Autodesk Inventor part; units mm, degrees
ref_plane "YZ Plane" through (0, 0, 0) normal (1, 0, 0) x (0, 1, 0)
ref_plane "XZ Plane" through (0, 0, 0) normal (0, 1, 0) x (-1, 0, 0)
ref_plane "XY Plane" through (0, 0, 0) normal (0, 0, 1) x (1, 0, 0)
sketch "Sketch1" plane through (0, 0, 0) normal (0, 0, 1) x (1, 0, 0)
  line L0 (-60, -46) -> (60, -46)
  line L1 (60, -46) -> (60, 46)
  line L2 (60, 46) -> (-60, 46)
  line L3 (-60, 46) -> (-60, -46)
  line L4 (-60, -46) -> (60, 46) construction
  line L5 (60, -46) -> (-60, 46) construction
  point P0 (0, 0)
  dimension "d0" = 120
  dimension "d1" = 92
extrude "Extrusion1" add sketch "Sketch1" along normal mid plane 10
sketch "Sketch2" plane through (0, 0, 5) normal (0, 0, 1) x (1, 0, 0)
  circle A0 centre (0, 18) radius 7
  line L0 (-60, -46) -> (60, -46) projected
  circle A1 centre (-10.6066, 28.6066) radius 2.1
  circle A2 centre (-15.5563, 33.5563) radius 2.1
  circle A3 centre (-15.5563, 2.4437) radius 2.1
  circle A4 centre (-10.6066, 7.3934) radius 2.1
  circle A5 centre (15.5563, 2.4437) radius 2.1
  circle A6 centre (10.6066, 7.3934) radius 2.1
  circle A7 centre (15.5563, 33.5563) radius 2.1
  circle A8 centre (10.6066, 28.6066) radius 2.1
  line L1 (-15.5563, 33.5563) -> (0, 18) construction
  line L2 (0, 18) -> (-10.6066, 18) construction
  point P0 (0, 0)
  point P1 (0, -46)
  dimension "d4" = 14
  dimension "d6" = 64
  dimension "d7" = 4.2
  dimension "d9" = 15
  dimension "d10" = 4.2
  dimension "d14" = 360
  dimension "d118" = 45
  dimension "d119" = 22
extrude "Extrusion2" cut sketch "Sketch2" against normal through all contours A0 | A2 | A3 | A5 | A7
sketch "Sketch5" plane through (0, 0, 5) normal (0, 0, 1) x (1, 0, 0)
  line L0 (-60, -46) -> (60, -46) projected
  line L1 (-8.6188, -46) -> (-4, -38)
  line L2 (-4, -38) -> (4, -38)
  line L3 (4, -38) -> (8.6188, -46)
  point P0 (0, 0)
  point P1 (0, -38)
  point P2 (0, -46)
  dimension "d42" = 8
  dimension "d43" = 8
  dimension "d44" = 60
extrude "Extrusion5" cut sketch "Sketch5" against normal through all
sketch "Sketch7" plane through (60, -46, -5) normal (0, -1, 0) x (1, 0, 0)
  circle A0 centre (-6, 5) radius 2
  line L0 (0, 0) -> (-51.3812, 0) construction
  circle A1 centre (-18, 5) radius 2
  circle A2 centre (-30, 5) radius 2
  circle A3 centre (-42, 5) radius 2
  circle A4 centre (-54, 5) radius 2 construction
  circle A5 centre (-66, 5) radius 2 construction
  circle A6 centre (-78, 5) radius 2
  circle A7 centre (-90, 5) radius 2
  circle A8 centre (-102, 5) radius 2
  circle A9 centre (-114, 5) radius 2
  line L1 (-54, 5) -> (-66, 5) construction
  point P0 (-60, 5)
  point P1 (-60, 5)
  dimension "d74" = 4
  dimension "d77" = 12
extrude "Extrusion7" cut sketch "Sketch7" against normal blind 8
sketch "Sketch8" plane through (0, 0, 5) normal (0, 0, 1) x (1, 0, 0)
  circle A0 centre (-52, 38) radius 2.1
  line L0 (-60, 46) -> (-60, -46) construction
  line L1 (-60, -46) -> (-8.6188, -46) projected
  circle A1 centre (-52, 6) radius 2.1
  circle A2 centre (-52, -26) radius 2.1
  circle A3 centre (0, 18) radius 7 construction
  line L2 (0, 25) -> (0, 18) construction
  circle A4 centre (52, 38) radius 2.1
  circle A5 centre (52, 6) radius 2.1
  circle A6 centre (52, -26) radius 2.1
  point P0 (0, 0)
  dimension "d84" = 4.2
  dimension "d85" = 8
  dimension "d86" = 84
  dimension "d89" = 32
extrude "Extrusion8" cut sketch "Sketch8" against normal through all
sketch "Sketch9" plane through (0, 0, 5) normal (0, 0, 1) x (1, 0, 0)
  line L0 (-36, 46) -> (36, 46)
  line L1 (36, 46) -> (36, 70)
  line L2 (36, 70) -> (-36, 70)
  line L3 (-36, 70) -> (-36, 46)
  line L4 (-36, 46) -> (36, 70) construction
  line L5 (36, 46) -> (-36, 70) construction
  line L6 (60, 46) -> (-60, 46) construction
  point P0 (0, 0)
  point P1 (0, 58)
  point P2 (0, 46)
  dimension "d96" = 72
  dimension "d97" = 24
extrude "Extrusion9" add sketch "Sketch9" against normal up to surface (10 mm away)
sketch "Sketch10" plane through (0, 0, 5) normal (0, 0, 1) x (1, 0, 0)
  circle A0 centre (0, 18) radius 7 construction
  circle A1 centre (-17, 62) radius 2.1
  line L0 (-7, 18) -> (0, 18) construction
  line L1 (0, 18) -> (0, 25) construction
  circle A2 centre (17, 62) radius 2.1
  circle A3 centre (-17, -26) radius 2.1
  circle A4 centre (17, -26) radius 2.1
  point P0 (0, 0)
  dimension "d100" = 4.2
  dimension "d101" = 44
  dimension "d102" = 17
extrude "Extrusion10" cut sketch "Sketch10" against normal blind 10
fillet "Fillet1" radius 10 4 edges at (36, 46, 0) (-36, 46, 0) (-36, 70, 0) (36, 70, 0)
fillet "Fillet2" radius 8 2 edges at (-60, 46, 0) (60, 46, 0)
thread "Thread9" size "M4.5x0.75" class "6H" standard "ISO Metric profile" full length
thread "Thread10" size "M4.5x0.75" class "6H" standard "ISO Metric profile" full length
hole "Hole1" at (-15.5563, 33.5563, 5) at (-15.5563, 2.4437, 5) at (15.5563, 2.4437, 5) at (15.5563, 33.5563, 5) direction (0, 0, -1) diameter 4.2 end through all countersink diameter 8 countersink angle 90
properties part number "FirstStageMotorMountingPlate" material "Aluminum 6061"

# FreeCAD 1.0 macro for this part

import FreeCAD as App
import Part
import Sketcher

V = App.Vector
Q = App.Units.Quantity


def edges_at(feature, points):
    """Names of the edges that pass closest to the given points."""
    edges = feature.Shape.Edges
    near = lambda p: min(range(len(edges)), key=lambda i: edges[i].distToShape(Part.Vertex(*p))[0])
    return sorted({f"Edge{near(p) + 1}" for p in points})


def add_polygon(sketch, points):
    """Adds a closed chain of lines whose ends are joined by coincident constraints."""
    first, n = sketch.GeometryCount, len(points)
    for a, b in zip(points, points[1:] + points[:1]):
        sketch.addGeometry(Part.LineSegment(App.Vector(*a, 0), App.Vector(*b, 0)), False)
    for i in range(n):
        sketch.addConstraint(Sketcher.Constraint("Coincident", first + i, 2, first + (i + 1) % n, 1))

doc = App.newDocument("Part")
body = doc.addObject("PartDesign::Body", "Body")

# Sketch on XY plane
sketch1 = body.newObject("Sketcher::SketchObject", "Sketch")
sketch1.AttachmentSupport = (doc.getObject("XY_Plane"), [""])
sketch1.MapMode = "FlatFace"
add_polygon(sketch1, [(-60, 46), (-60, -46), (60, -46), (60, 46)])  # lines 0-3
sketch1.addConstraint([
    Sketcher.Constraint("Vertical", 0),
    Sketcher.Constraint("Horizontal", 1),
    Sketcher.Constraint("Vertical", 2),
    Sketcher.Constraint("Horizontal", 3),
    Sketcher.Constraint("Symmetric", 0, 2, 2, 2, -1, 1),
    Sketcher.Constraint("DistanceX", 1, 1, 1, 2, Q("120 mm")),
    Sketcher.Constraint("DistanceY", 0, 2, 0, 1, Q("92 mm")),
])
pad1 = body.newObject("PartDesign::Pad", "Pad")
pad1.Profile = sketch1
pad1.Length = 10
pad1.Midplane = True

# Sketch on XY plane
sketch2 = body.newObject("Sketcher::SketchObject", "Sketch001")
sketch2.AttachmentSupport = (doc.getObject("XY_Plane"), [""])
sketch2.MapMode = "FlatFace"
sketch2.AttachmentOffset = App.Placement(V(0, 0, 5), App.Rotation())
sketch2.addGeometry([
    Part.Circle(V(0, 18, 0), V(0, 0, 1), 7),  # 0
    Part.Circle(V(-15.5563, 33.5563, 0), V(0, 0, 1), 2.1),  # 1
    Part.Circle(V(-15.5563, 2.4437, 0), V(0, 0, 1), 2.1),  # 2
    Part.Circle(V(15.5563, 2.4437, 0), V(0, 0, 1), 2.1),  # 3
    Part.Circle(V(15.5563, 33.5563, 0), V(0, 0, 1), 2.1),  # 4
], False)
sketch2.addConstraint([
    Sketcher.Constraint("Equal", 1, 2),
    Sketcher.Constraint("Equal", 2, 3),
    Sketcher.Constraint("Equal", 3, 4),
    Sketcher.Constraint("Symmetric", 2, 3, 3, 3, -2),
    Sketcher.Constraint("Symmetric", 1, 3, 4, 3, -2),
    Sketcher.Constraint("PointOnObject", 0, 3, -2),
    Sketcher.Constraint("Vertical", 1, 3, 2, 3),
    Sketcher.Constraint("Diameter", 0, Q("14 mm")),
    Sketcher.Constraint("Diameter", 1, Q("4.2 mm")),
    Sketcher.Constraint("DistanceY", -1, 1, 0, 3, Q("18 mm")),
    Sketcher.Constraint("DistanceX", 1, 3, -1, 1, Q("15.5563 mm")),
    Sketcher.Constraint("DistanceY", -1, 1, 1, 3, Q("33.5563 mm")),
    Sketcher.Constraint("DistanceY", -1, 1, 2, 3, Q("2.4437 mm")),
])
pocket1 = body.newObject("PartDesign::Pocket", "Pocket")
pocket1.Profile = sketch2
pocket1.Type = "ThroughAll"

# Sketch on XY plane
sketch3 = body.newObject("Sketcher::SketchObject", "Sketch002")
sketch3.AttachmentSupport = (doc.getObject("XY_Plane"), [""])
sketch3.MapMode = "FlatFace"
sketch3.AttachmentOffset = App.Placement(V(0, 0, 5), App.Rotation())
add_polygon(sketch3, [(-4, -38), (-8.6188, -46), (8.6188, -46), (4, -38)])  # lines 0-3
sketch3.addConstraint([
    Sketcher.Constraint("Horizontal", 1),
    Sketcher.Constraint("Horizontal", 3),
    Sketcher.Constraint("Equal", 0, 2),
    Sketcher.Constraint("DistanceX", 3, 2, 3, 1, Q("8 mm")),
    Sketcher.Constraint("DistanceY", 1, 2, 2, 2, Q("8 mm")),
    Sketcher.Constraint("Angle", 0, Q("-120 deg")),
    Sketcher.Constraint("DistanceY", 0, 2, -1, 1, Q("46 mm")),
    Sketcher.Constraint("DistanceX", -1, 1, 2, 2, Q("4 mm")),
])
pocket2 = body.newObject("PartDesign::Pocket", "Pocket001")
pocket2.Profile = sketch3
pocket2.Type = "ThroughAll"

# Sketch on XZ plane
sketch4 = body.newObject("Sketcher::SketchObject", "Sketch003")
sketch4.AttachmentSupport = (doc.getObject("XZ_Plane"), [""])
sketch4.MapMode = "FlatFace"
sketch4.AttachmentOffset = App.Placement(V(0, 0, 46), App.Rotation())
sketch4.addGeometry([
    Part.Circle(V(54, 0, 0), V(0, 0, 1), 2),  # 0
    Part.Circle(V(42, 0, 0), V(0, 0, 1), 2),  # 1
    Part.Circle(V(30, 0, 0), V(0, 0, 1), 2),  # 2
    Part.Circle(V(18, 0, 0), V(0, 0, 1), 2),  # 3
    Part.Circle(V(-18, 0, 0), V(0, 0, 1), 2),  # 4
    Part.Circle(V(-30, 0, 0), V(0, 0, 1), 2),  # 5
    Part.Circle(V(-42, 0, 0), V(0, 0, 1), 2),  # 6
    Part.Circle(V(-54, 0, 0), V(0, 0, 1), 2),  # 7
], False)
sketch4.addConstraint([
    Sketcher.Constraint("Equal", 0, 1),
    Sketcher.Constraint("Equal", 1, 2),
    Sketcher.Constraint("Equal", 2, 3),
    Sketcher.Constraint("Equal", 3, 4),
    Sketcher.Constraint("Equal", 4, 5),
    Sketcher.Constraint("Equal", 5, 6),
    Sketcher.Constraint("Equal", 6, 7),
    Sketcher.Constraint("Symmetric", 3, 3, 4, 3, -1, 1),
    Sketcher.Constraint("Symmetric", 2, 3, 5, 3, -1, 1),
    Sketcher.Constraint("Symmetric", 1, 3, 6, 3, -1, 1),
    Sketcher.Constraint("Symmetric", 0, 3, 7, 3, -1, 1),
    Sketcher.Constraint("PointOnObject", 0, 3, -1),
    Sketcher.Constraint("PointOnObject", 1, 3, -1),
    Sketcher.Constraint("PointOnObject", 2, 3, -1),
    Sketcher.Constraint("PointOnObject", 3, 3, -1),
    Sketcher.Constraint("Diameter", 0, Q("4 mm")),
    Sketcher.Constraint("DistanceX", 1, 3, 0, 3, Q("12 mm")),
    Sketcher.Constraint("DistanceX", 2, 3, 1, 3, Q("12 mm")),
    Sketcher.Constraint("DistanceX", 3, 3, 2, 3, Q("12 mm")),
    Sketcher.Constraint("DistanceX", -1, 1, 0, 3, Q("54 mm")),
])
pocket3 = body.newObject("PartDesign::Pocket", "Pocket002")
pocket3.Profile = sketch4
pocket3.Length = 8

# Sketch on XY plane
sketch5 = body.newObject("Sketcher::SketchObject", "Sketch004")
sketch5.AttachmentSupport = (doc.getObject("XY_Plane"), [""])
sketch5.MapMode = "FlatFace"
sketch5.AttachmentOffset = App.Placement(V(0, 0, 5), App.Rotation())
sketch5.addGeometry([
    Part.Circle(V(-52, 38, 0), V(0, 0, 1), 2.1),  # 0
    Part.Circle(V(-52, 6, 0), V(0, 0, 1), 2.1),  # 1
    Part.Circle(V(-52, -26, 0), V(0, 0, 1), 2.1),  # 2
    Part.Circle(V(52, 38, 0), V(0, 0, 1), 2.1),  # 3
    Part.Circle(V(52, 6, 0), V(0, 0, 1), 2.1),  # 4
    Part.Circle(V(52, -26, 0), V(0, 0, 1), 2.1),  # 5
], False)
sketch5.addConstraint([
    Sketcher.Constraint("Equal", 0, 1),
    Sketcher.Constraint("Equal", 1, 2),
    Sketcher.Constraint("Equal", 2, 3),
    Sketcher.Constraint("Equal", 3, 4),
    Sketcher.Constraint("Equal", 4, 5),
    Sketcher.Constraint("Symmetric", 0, 3, 3, 3, -2),
    Sketcher.Constraint("Symmetric", 1, 3, 4, 3, -2),
    Sketcher.Constraint("Symmetric", 2, 3, 5, 3, -2),
    Sketcher.Constraint("Vertical", 0, 3, 1, 3),
    Sketcher.Constraint("Vertical", 1, 3, 2, 3),
    Sketcher.Constraint("Diameter", 0, Q("4.2 mm")),
    Sketcher.Constraint("DistanceY", 1, 3, 0, 3, Q("32 mm")),
    Sketcher.Constraint("DistanceY", 2, 3, 1, 3, Q("32 mm")),
    Sketcher.Constraint("DistanceX", 0, 3, -1, 1, Q("52 mm")),
    Sketcher.Constraint("DistanceY", -1, 1, 0, 3, Q("38 mm")),
])
pocket4 = body.newObject("PartDesign::Pocket", "Pocket003")
pocket4.Profile = sketch5
pocket4.Type = "ThroughAll"

# Sketch on XY plane
sketch6 = body.newObject("Sketcher::SketchObject", "Sketch005")
sketch6.AttachmentSupport = (doc.getObject("XY_Plane"), [""])
sketch6.MapMode = "FlatFace"
sketch6.AttachmentOffset = App.Placement(V(0, 0, 5), App.Rotation())
add_polygon(sketch6, [(-36, 70), (-36, 46), (36, 46), (36, 70)])  # lines 0-3
sketch6.addConstraint([
    Sketcher.Constraint("Vertical", 0),
    Sketcher.Constraint("Horizontal", 1),
    Sketcher.Constraint("Vertical", 2),
    Sketcher.Constraint("Horizontal", 3),
    Sketcher.Constraint("DistanceX", 1, 1, 1, 2, Q("72 mm")),
    Sketcher.Constraint("DistanceY", 0, 2, 0, 1, Q("24 mm")),
    Sketcher.Constraint("DistanceX", 0, 2, -1, 1, Q("36 mm")),
    Sketcher.Constraint("DistanceY", -1, 1, 0, 2, Q("46 mm")),
])
pad2 = body.newObject("PartDesign::Pad", "Pad001")
pad2.Profile = sketch6
pad2.Length = 10
pad2.Reversed = True

# Sketch on XY plane
sketch7 = body.newObject("Sketcher::SketchObject", "Sketch006")
sketch7.AttachmentSupport = (doc.getObject("XY_Plane"), [""])
sketch7.MapMode = "FlatFace"
sketch7.AttachmentOffset = App.Placement(V(0, 0, 5), App.Rotation())
sketch7.addGeometry([
    Part.Circle(V(-17, 62, 0), V(0, 0, 1), 2.1),
    Part.Circle(V(17, 62, 0), V(0, 0, 1), 2.1),
    Part.Circle(V(-17, -26, 0), V(0, 0, 1), 2.1),
    Part.Circle(V(17, -26, 0), V(0, 0, 1), 2.1),
], False)
sketch7.addConstraint([
    Sketcher.Constraint("Equal", 0, 1),
    Sketcher.Constraint("Equal", 1, 2),
    Sketcher.Constraint("Equal", 2, 3),
    Sketcher.Constraint("Symmetric", 0, 3, 1, 3, -2),
    Sketcher.Constraint("Symmetric", 2, 3, 3, 3, -2),
    Sketcher.Constraint("Vertical", 0, 3, 2, 3),
    Sketcher.Constraint("Diameter", 0, Q("4.2 mm")),
    Sketcher.Constraint("DistanceX", 0, 3, -1, 1, Q("17 mm")),
    Sketcher.Constraint("DistanceY", -1, 1, 0, 3, Q("62 mm")),
    Sketcher.Constraint("DistanceY", 2, 3, -1, 1, Q("26 mm")),
])
pocket5 = body.newObject("PartDesign::Pocket", "Pocket004")
pocket5.Profile = sketch7
pocket5.Length = 10
doc.recompute()

fillet = body.newObject("PartDesign::Fillet", "Fillet")
fillet.Base = (pocket5, edges_at(pocket5, [
    (36, 46, 0),
    (-36, 46, 0),
    (-36, 70, 0),
    (36, 70, 0),
]))
fillet.Radius = 10
doc.recompute()

fillet2 = body.newObject("PartDesign::Fillet", "Fillet001")
fillet2.Base = (fillet, edges_at(fillet, [(-60, 46, 0), (60, 46, 0)]))
fillet2.Radius = 8

# Sketch on XY plane
sketch8 = body.newObject("Sketcher::SketchObject", "Sketch007")
sketch8.AttachmentSupport = (doc.getObject("XY_Plane"), [""])
sketch8.MapMode = "FlatFace"
sketch8.AttachmentOffset = App.Placement(V(0, 0, 5), App.Rotation())
sketch8.addGeometry([
    Part.Circle(V(-15.5563, 33.5563, 0), V(0, 0, 1), 2.1),
    Part.Circle(V(-15.5563, 2.4437, 0), V(0, 0, 1), 2.1),
    Part.Circle(V(15.5563, 2.4437, 0), V(0, 0, 1), 2.1),
    Part.Circle(V(15.5563, 33.5563, 0), V(0, 0, 1), 2.1),
], False)
sketch8.addConstraint([
    Sketcher.Constraint("Equal", 0, 1),
    Sketcher.Constraint("Equal", 1, 2),
    Sketcher.Constraint("Equal", 2, 3),
    Sketcher.Constraint("Symmetric", 1, 3, 2, 3, -2),
    Sketcher.Constraint("Symmetric", 0, 3, 3, 3, -2),
    Sketcher.Constraint("Vertical", 0, 3, 1, 3),
    Sketcher.Constraint("Diameter", 0, Q("4.2 mm")),
    Sketcher.Constraint("DistanceX", 0, 3, -1, 1, Q("15.5563 mm")),
    Sketcher.Constraint("DistanceY", -1, 1, 0, 3, Q("33.5563 mm")),
    Sketcher.Constraint("DistanceY", -1, 1, 1, 3, Q("2.4437 mm")),
])
doc.recompute()
hole = body.newObject("PartDesign::Hole", "Hole")
hole.Profile = sketch8
hole.ThreadType = "None"
hole.Diameter = 4.2
hole.DepthType = "ThroughAll"
hole.HoleCutType = "Countersink"
hole.HoleCutDiameter = 8
hole.HoleCutCountersinkAngle = 90

doc.recompute()
